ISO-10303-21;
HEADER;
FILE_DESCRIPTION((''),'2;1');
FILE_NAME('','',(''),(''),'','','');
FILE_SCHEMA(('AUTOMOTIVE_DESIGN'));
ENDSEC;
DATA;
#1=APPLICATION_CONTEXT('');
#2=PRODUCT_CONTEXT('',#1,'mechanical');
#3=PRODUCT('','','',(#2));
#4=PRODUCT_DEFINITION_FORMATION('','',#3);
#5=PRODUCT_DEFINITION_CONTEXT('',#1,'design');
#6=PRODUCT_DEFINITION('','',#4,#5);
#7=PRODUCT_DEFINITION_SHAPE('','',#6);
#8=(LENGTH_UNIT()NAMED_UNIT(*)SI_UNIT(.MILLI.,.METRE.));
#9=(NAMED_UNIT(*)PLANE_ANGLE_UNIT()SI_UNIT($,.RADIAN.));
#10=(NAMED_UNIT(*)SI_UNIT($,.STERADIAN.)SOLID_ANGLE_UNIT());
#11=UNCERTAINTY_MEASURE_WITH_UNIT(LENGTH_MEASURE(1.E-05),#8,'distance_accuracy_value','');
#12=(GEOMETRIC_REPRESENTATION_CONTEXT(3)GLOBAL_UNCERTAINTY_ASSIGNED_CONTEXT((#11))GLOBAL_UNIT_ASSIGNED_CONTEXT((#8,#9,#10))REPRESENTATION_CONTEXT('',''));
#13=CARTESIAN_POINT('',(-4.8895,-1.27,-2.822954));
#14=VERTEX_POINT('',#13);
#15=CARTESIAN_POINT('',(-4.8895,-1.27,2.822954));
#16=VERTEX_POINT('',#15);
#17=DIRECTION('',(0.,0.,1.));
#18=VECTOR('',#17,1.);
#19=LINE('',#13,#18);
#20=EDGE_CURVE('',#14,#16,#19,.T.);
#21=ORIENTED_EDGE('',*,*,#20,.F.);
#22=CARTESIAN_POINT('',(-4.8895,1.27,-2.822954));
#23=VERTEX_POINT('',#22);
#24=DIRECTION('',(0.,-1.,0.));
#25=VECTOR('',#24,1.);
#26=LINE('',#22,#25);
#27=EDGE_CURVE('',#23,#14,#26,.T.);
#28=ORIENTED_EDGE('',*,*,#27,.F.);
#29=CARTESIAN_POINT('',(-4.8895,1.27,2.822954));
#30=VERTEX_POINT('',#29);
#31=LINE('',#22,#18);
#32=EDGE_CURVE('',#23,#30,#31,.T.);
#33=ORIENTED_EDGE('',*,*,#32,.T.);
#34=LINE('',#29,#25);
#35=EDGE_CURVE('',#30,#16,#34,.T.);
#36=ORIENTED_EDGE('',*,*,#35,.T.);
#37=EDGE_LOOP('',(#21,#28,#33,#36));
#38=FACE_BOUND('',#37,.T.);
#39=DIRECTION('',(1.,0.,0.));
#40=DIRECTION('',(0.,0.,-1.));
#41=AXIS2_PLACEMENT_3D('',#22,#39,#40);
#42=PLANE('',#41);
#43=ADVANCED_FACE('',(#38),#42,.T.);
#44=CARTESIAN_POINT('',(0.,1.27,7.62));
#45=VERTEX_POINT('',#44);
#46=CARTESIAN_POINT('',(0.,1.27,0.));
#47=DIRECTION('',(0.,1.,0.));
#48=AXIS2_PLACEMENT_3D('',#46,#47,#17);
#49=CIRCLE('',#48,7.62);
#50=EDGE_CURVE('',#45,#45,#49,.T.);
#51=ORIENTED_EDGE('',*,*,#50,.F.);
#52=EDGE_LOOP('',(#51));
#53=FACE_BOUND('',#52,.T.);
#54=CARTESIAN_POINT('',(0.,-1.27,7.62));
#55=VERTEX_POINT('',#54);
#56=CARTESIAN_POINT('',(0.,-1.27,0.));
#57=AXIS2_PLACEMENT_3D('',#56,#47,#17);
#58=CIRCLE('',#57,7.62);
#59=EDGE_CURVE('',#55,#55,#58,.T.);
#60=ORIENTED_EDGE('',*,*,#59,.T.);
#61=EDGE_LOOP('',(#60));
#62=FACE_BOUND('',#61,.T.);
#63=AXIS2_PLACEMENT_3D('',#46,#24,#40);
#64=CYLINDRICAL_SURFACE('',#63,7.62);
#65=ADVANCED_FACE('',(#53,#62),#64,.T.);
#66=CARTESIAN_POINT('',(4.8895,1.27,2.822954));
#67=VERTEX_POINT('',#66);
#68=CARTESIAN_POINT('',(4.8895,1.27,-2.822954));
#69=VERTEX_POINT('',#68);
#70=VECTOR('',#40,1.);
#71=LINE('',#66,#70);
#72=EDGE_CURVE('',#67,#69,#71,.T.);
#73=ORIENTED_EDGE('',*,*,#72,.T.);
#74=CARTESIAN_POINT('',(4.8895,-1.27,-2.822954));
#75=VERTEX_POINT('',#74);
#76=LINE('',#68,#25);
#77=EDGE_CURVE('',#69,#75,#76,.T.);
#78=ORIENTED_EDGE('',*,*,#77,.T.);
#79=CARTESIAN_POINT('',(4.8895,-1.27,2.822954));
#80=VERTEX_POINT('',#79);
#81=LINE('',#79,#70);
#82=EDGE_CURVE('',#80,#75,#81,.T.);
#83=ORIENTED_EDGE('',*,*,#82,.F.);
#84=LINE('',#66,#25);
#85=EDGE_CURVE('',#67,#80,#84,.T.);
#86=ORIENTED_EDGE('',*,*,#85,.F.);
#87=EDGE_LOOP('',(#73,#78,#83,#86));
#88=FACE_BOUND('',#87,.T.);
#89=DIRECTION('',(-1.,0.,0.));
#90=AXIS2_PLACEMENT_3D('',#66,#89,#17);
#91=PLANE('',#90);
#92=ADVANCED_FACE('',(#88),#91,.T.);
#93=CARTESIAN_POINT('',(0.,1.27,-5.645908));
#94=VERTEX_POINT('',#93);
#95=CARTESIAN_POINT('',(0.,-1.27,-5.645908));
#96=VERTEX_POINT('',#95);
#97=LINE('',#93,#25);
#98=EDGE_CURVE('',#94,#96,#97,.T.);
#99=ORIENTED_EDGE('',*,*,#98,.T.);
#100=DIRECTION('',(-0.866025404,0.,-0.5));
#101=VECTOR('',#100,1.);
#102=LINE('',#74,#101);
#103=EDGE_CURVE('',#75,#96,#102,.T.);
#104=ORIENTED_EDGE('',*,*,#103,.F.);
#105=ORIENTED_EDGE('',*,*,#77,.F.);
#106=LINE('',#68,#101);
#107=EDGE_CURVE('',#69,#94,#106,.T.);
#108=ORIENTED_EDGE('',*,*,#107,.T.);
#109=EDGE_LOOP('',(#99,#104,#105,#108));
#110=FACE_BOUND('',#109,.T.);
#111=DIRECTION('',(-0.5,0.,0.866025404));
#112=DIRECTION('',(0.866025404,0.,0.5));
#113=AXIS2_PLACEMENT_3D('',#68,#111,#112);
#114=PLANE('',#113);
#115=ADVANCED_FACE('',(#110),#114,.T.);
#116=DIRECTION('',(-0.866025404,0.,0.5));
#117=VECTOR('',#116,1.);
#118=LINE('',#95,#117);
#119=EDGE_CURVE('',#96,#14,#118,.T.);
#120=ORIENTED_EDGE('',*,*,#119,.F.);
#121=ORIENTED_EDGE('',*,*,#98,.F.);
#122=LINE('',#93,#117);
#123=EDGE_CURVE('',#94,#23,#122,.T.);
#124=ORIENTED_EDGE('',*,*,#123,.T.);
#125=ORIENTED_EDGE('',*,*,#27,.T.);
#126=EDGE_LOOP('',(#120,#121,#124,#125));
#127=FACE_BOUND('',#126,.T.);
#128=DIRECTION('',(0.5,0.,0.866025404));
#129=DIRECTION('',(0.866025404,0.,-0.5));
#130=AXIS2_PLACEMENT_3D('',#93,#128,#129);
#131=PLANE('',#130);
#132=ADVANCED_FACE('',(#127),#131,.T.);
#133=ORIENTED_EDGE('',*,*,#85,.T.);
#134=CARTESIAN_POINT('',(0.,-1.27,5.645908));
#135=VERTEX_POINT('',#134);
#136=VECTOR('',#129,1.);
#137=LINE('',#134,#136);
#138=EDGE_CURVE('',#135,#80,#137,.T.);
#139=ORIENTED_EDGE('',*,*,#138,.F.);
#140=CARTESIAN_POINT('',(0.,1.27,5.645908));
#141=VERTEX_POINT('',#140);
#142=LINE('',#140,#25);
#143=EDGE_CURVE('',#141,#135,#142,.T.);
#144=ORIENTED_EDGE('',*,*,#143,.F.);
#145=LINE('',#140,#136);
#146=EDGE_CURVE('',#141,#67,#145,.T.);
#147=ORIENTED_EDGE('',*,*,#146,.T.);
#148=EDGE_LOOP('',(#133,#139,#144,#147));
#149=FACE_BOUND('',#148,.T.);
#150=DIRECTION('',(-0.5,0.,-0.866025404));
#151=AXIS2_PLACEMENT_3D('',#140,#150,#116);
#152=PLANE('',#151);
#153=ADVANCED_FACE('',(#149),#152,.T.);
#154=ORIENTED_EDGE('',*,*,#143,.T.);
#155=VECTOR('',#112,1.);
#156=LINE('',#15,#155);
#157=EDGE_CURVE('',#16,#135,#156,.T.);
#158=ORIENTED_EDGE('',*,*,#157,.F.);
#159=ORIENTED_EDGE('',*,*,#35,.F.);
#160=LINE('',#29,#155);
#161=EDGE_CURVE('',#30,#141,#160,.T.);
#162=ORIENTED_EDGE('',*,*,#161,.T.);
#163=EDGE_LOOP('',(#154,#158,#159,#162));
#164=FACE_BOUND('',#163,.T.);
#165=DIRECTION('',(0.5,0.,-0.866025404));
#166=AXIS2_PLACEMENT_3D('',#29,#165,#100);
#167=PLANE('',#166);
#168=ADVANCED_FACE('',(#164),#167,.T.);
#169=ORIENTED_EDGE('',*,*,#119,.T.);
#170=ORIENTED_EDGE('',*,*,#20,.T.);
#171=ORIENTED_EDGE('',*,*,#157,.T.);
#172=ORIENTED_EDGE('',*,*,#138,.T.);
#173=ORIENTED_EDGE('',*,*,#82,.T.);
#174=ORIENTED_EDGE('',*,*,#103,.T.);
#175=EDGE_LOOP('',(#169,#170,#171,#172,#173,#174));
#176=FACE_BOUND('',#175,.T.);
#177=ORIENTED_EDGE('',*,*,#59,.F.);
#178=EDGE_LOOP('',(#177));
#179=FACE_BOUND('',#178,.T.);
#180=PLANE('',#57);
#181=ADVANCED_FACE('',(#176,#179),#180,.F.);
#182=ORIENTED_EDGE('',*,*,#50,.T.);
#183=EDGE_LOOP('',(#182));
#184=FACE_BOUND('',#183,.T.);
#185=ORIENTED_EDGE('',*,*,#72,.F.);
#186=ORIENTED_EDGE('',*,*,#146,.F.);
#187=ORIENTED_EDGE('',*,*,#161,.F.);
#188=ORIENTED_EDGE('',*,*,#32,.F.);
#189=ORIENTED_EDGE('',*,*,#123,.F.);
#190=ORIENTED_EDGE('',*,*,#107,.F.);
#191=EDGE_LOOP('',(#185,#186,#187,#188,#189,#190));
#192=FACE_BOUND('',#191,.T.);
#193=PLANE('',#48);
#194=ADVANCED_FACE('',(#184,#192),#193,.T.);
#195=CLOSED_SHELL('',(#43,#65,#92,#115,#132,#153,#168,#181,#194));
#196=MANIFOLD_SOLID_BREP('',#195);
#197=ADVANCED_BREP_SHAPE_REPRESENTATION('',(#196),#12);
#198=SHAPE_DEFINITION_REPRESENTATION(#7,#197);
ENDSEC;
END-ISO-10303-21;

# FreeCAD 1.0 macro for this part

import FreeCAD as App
import Part
import Sketcher

V = App.Vector
Q = App.Units.Quantity


def add_polygon(sketch, points):
    """Adds a closed chain of lines whose ends are joined by coincident constraints."""
    first, n = sketch.GeometryCount, len(points)
    for a, b in zip(points, points[1:] + points[:1]):
        sketch.addGeometry(Part.LineSegment(App.Vector(*a, 0), App.Vector(*b, 0)), False)
    for i in range(n):
        sketch.addConstraint(Sketcher.Constraint("Coincident", first + i, 2, first + (i + 1) % n, 1))

doc = App.newDocument("Part")
body = doc.addObject("PartDesign::Body", "Body")

# Sketch on XZ plane
sketch1 = body.newObject("Sketcher::SketchObject", "Sketch")
sketch1.AttachmentSupport = (doc.getObject("XZ_Plane"), [""])
sketch1.MapMode = "FlatFace"
sketch1.addGeometry(Part.Circle(V(0, 0, 0), V(0, 0, 1), 8), False)  # 0
add_polygon(sketch1, [(5, -3), (5, 3), (0, 6), (-5, 3), (-5, -3), (0, -6)])  # lines 1-6
sketch1.addConstraint([
    Sketcher.Constraint("Vertical", 1),
    Sketcher.Constraint("Vertical", 4),
    Sketcher.Constraint("Coincident", 0, 3, -1, 1),
    Sketcher.Constraint("Symmetric", 1, 2, 4, 2, -1, 1),
    Sketcher.Constraint("Symmetric", 2, 2, 5, 2, -1, 1),
    Sketcher.Constraint("PointOnObject", 2, 2, -2),
    Sketcher.Constraint("Parallel", 3, 6),
    Sketcher.Constraint("Horizontal", 1, 2, 3, 2),
    Sketcher.Constraint("Diameter", 0, Q("0.6 in")),
    Sketcher.Constraint("Angle", 2, Q("150 deg")),
    Sketcher.Constraint("DistanceX", 3, 2, 1, 2, Q("0.385 in")),
    Sketcher.Constraint("DistanceY", 1, 1, 1, 2, Q("5.645908 mm")),
])
pad1 = body.newObject("PartDesign::Pad", "Pad")
pad1.Profile = sketch1
pad1.Length = Q("0.1 in")
pad1.Midplane = True

doc.recompute()
